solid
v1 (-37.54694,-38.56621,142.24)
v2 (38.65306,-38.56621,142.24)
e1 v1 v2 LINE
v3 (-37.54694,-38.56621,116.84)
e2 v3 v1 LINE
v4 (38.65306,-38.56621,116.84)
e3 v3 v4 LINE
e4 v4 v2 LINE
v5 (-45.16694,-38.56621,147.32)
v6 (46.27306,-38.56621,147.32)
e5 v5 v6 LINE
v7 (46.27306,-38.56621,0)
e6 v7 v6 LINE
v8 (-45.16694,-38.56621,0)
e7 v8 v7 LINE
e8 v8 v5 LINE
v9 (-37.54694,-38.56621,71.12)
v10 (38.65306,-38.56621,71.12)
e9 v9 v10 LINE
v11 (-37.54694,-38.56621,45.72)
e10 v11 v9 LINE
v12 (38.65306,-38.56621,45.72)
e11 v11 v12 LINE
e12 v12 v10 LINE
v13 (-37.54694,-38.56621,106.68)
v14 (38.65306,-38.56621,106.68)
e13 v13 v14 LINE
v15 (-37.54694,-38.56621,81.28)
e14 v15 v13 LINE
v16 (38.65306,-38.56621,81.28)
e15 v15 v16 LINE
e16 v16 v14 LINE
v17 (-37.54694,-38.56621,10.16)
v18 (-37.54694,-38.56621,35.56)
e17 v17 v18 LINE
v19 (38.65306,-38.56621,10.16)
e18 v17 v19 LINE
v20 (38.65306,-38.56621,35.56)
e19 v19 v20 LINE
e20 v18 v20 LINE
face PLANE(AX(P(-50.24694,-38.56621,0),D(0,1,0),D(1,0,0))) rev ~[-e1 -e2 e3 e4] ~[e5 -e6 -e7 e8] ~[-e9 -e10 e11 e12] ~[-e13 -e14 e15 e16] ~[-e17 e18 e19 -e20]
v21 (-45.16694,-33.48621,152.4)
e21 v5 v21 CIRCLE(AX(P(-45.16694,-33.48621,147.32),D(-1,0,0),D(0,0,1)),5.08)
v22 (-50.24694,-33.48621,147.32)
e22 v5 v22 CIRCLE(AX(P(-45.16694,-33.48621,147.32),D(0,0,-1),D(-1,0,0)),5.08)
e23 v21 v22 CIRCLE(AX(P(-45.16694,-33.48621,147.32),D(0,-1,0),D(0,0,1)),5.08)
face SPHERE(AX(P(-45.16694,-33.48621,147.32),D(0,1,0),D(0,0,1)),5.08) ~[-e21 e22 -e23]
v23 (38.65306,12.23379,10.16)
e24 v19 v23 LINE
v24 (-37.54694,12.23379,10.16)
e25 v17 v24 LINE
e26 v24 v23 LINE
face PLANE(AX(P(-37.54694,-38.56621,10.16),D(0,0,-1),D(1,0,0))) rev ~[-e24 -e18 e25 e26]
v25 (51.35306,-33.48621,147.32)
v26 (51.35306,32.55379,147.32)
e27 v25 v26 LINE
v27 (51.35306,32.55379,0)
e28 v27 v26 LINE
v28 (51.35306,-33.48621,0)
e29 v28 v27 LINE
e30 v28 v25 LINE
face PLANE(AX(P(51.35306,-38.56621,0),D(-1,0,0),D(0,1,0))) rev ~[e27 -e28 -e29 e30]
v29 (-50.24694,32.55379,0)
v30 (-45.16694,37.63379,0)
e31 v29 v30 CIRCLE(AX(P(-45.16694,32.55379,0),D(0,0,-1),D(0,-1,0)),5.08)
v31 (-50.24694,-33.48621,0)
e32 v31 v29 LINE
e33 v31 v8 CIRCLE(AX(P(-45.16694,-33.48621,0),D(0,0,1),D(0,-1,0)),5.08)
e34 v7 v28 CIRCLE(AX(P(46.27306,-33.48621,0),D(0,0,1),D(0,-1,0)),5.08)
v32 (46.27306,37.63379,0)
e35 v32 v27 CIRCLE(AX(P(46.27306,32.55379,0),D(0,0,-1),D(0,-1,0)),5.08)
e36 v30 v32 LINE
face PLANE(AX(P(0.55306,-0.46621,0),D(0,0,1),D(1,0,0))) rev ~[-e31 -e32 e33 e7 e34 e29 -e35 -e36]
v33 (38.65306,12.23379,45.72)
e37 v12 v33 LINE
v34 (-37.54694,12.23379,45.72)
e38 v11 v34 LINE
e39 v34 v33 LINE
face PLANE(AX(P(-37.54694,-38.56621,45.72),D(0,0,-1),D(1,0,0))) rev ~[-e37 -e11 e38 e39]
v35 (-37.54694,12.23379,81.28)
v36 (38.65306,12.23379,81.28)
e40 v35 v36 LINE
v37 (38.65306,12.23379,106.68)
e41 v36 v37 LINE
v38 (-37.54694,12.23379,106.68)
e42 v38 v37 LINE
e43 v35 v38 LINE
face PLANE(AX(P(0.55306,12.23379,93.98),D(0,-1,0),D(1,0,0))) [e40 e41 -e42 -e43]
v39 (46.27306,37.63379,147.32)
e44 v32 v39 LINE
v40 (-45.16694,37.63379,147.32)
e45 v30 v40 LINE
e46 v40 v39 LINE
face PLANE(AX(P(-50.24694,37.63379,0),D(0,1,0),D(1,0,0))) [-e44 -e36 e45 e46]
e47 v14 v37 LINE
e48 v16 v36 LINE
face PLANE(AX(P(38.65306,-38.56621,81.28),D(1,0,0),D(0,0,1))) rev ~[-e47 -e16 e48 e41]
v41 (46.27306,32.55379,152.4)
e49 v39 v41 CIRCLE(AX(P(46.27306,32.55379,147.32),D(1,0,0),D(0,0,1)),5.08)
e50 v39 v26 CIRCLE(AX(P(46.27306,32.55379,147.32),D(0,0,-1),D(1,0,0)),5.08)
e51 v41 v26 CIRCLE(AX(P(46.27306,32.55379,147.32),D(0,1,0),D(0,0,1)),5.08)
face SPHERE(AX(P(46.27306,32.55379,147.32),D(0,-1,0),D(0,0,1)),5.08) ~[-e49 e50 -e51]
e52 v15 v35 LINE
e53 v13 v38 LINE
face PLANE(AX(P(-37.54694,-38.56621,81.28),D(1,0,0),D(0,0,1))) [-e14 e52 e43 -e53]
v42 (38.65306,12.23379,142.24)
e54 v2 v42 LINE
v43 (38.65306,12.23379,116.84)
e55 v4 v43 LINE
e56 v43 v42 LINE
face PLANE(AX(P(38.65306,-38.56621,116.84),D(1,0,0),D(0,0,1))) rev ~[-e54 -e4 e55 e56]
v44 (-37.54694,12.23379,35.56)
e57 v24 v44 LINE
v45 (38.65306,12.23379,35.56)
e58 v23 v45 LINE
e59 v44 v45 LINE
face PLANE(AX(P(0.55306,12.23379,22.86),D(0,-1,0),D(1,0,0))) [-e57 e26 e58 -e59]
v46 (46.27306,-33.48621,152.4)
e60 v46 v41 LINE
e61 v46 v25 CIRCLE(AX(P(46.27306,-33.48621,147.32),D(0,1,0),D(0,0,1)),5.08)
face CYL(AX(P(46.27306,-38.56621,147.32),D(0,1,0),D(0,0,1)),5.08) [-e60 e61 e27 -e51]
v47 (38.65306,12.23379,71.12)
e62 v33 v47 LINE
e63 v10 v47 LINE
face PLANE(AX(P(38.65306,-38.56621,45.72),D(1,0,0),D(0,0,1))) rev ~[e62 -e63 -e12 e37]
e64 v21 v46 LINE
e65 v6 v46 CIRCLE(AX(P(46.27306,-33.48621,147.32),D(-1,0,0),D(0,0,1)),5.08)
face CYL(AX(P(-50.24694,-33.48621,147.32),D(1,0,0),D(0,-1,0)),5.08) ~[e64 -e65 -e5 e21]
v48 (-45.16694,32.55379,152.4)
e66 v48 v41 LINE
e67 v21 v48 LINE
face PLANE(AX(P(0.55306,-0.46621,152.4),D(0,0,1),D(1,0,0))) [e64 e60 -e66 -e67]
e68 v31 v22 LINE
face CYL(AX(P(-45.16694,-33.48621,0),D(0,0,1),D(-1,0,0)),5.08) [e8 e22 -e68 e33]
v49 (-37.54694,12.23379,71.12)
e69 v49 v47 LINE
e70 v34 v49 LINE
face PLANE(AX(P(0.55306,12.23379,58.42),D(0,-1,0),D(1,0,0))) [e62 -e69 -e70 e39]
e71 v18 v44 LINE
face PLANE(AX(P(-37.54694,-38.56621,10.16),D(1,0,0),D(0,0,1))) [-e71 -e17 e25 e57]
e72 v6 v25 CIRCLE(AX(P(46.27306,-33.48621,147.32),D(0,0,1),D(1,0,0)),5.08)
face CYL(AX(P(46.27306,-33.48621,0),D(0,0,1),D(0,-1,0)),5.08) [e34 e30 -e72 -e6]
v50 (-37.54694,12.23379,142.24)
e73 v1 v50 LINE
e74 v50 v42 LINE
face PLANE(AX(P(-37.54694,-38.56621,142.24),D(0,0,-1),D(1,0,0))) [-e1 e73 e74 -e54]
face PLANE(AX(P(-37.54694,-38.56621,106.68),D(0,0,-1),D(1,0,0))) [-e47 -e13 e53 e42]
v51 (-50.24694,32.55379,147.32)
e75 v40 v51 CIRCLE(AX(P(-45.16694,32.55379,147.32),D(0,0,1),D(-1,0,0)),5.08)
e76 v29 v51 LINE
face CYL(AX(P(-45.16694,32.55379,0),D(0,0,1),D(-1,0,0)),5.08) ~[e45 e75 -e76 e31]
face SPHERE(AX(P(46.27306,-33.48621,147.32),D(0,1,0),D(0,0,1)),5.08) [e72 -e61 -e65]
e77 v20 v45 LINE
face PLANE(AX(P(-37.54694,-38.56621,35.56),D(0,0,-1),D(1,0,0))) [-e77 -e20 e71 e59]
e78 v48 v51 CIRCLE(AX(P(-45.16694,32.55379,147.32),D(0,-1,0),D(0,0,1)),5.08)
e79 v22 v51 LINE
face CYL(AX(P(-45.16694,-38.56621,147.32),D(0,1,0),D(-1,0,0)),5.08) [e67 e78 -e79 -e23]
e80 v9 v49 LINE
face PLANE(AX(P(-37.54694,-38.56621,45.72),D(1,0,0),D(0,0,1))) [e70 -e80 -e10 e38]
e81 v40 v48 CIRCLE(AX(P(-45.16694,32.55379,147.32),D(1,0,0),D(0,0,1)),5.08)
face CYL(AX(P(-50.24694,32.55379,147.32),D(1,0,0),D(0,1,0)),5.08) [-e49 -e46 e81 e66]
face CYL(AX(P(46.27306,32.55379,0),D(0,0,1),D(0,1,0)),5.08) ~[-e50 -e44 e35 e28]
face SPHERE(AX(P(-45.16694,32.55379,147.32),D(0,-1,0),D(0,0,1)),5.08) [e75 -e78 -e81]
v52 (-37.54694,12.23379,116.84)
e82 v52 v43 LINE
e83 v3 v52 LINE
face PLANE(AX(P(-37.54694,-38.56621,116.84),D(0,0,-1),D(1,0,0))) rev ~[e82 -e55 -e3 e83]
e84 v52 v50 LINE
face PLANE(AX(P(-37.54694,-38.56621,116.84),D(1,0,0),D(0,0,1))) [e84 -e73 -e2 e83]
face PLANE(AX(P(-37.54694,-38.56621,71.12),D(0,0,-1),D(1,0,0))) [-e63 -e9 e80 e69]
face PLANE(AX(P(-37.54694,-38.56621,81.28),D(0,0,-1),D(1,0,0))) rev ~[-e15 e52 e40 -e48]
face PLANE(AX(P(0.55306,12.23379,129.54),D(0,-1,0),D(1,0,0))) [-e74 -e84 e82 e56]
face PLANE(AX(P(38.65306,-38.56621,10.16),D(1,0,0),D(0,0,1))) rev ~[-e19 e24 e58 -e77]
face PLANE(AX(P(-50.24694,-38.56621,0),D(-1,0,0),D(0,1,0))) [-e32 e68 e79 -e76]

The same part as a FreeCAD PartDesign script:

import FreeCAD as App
import Part
import Sketcher

V = App.Vector
Q = App.Units.Quantity


def edges_at(feature, points):
    """Names of the edges that pass closest to the given points."""
    edges = feature.Shape.Edges
    near = lambda p: min(range(len(edges)), key=lambda i: edges[i].distToShape(Part.Vertex(*p))[0])
    return sorted({f"Edge{near(p) + 1}" for p in points})


def add_polygon(sketch, points):
    """Adds a closed chain of lines whose ends are joined by coincident constraints."""
    first, n = sketch.GeometryCount, len(points)
    for a, b in zip(points, points[1:] + points[:1]):
        sketch.addGeometry(Part.LineSegment(App.Vector(*a, 0), App.Vector(*b, 0)), False)
    for i in range(n):
        sketch.addConstraint(Sketcher.Constraint("Coincident", first + i, 2, first + (i + 1) % n, 1))

doc = App.newDocument("Part")
params = doc.addObject("Spreadsheet::Sheet", "Params")
for row, (alias, value) in enumerate([
    ("sketch1_width", "4 in"),
    ("sketch1_height", "3 in"),
    ("pad1_length", "6 in"),
    ("sketch2_width", "3 in"),
    ("sketch2_height", "1 in"),
    ("pocket1_length", "2 in"),
    ("fillet_radius", "0.2 in"),
], start=1):
    params.set(f"A{row}", alias)
    params.set(f"B{row}", "=" + value)
    params.setAlias(f"B{row}", alias)

body = doc.addObject("PartDesign::Body", "Body")

sketch1 = body.newObject("Sketcher::SketchObject", "Sketch")
sketch1.AttachmentSupport = (doc.getObject("XY_Plane"), [""])
sketch1.MapMode = "FlatFace"
add_polygon(sketch1, [(-50, 38), (-50, -39), (51, -39), (51, 38)])
sketch1.addConstraint([
    Sketcher.Constraint("Vertical", 0),
    Sketcher.Constraint("Horizontal", 1),
    Sketcher.Constraint("Vertical", 2),
    Sketcher.Constraint("Horizontal", 3),
    Sketcher.Constraint("DistanceX", 1, 1, 1, 2, Q("4 in")),
    Sketcher.Constraint("DistanceY", 0, 2, 0, 1, Q("3 in")),
    Sketcher.Constraint("DistanceX", 0, 2, -1, 1, Q("50.24694 mm")),
    Sketcher.Constraint("DistanceY", 0, 2, -1, 1, Q("38.56621 mm")),
])
sketch1.setExpression("Constraints[8]", "Params.sketch1_width")
sketch1.setExpression("Constraints[9]", "Params.sketch1_height")
pad1 = body.newObject("PartDesign::Pad", "Pad")
pad1.Profile = sketch1
pad1.setExpression("Length", "Params.pad1_length")

sketch2 = body.newObject("Sketcher::SketchObject", "Sketch001")
sketch2.AttachmentSupport = (doc.getObject("XZ_Plane"), [""])
sketch2.MapMode = "FlatFace"
sketch2.AttachmentOffset = App.Placement(V(0, 0, 38.56621), App.Rotation())
add_polygon(sketch2, [(-38, 107), (-38, 81), (39, 81), (39, 107)])
add_polygon(sketch2, [(-38, 142), (-38, 117), (39, 117), (39, 142)])
add_polygon(sketch2, [(-38, 71), (-38, 46), (39, 46), (39, 71)])
add_polygon(sketch2, [(-38, 36), (-38, 10), (39, 10), (39, 36)])
sketch2.addConstraint([
    Sketcher.Constraint("Vertical", 0),
    Sketcher.Constraint("Horizontal", 1),
    Sketcher.Constraint("Vertical", 2),
    Sketcher.Constraint("Horizontal", 3),
    Sketcher.Constraint("Vertical", 4),
    Sketcher.Constraint("Horizontal", 5),
    Sketcher.Constraint("Vertical", 6),
    Sketcher.Constraint("Horizontal", 7),
    Sketcher.Constraint("Vertical", 8),
    Sketcher.Constraint("Horizontal", 9),
    Sketcher.Constraint("Vertical", 10),
    Sketcher.Constraint("Horizontal", 11),
    Sketcher.Constraint("Vertical", 12),
    Sketcher.Constraint("Horizontal", 13),
    Sketcher.Constraint("Vertical", 14),
    Sketcher.Constraint("Horizontal", 15),
    Sketcher.Constraint("Vertical", 3, 2, 4, 2),
    Sketcher.Constraint("Vertical", 2, 2, 5, 2),
    Sketcher.Constraint("Vertical", 7, 2, 8, 2),
    Sketcher.Constraint("Vertical", 6, 2, 9, 2),
    Sketcher.Constraint("Vertical", 11, 2, 12, 2),
    Sketcher.Constraint("Vertical", 10, 2, 13, 2),
    Sketcher.Constraint("Equal", 2, 4),
    Sketcher.Constraint("Equal", 6, 8),
    Sketcher.Constraint("Equal", 10, 12),
    Sketcher.Constraint("DistanceX", 1, 1, 1, 2, Q("3 in")),
    Sketcher.Constraint("DistanceY", 0, 2, 0, 1, Q("1 in")),
    Sketcher.Constraint("DistanceY", -1, 1, 0, 2, Q("3.2 in")),
    Sketcher.Constraint("DistanceY", -1, 1, 4, 2, Q("4.6 in")),
    Sketcher.Constraint("DistanceY", -1, 1, 8, 2, Q("1.8 in")),
    Sketcher.Constraint("DistanceY", -1, 1, 12, 2, Q("0.4 in")),
    Sketcher.Constraint("DistanceX", 0, 2, -1, 1, Q("37.54694 mm")),
])
sketch2.setExpression("Constraints[41]", "Params.sketch2_width")
sketch2.setExpression("Constraints[42]", "Params.sketch2_height")
pocket1 = body.newObject("PartDesign::Pocket", "Pocket")
pocket1.Profile = sketch2
pocket1.setExpression("Length", "Params.pocket1_length")
doc.recompute()

fillet = body.newObject("PartDesign::Fillet", "Fillet")
fillet.Base = (pocket1, edges_at(pocket1, [
    (51.353, -0.466, 152.4),
    (-50.247, -0.466, 152.4),
    (0.553, -38.566, 152.4),
    (0.553, 37.634, 152.4),
    (51.353, -38.566, 76.2),
    (-50.247, -38.566, 76.2),
    (51.353, 37.634, 76.2),
    (-50.247, 37.634, 76.2),
]))
fillet.setExpression("Radius", "Params.fillet_radius")

doc.recompute()
